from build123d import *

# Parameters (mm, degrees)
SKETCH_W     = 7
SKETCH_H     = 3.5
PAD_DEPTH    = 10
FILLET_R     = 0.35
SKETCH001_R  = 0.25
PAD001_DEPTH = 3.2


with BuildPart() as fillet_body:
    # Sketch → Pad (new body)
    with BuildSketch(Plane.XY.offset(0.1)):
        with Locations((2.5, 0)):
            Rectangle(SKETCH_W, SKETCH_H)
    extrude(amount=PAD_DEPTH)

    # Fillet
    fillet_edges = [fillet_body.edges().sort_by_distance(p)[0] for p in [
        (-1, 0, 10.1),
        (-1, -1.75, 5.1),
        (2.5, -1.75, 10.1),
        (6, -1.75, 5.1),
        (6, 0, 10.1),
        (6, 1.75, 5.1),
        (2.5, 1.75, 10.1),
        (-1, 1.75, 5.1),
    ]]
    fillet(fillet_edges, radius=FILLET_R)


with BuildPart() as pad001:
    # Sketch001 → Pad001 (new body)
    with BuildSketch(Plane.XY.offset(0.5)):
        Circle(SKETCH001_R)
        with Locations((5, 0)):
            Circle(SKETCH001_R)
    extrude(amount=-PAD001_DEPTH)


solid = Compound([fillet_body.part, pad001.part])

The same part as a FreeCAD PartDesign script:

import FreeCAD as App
import Part
import Sketcher

V = App.Vector
Q = App.Units.Quantity


def edges_at(feature, points):
    """Names of the edges that pass closest to the given points."""
    edges = feature.Shape.Edges
    near = lambda p: min(range(len(edges)), key=lambda i: edges[i].distToShape(Part.Vertex(*p))[0])
    return sorted({f"Edge{near(p) + 1}" for p in points})


def add_polygon(sketch, points):
    """Adds a closed chain of lines whose ends are joined by coincident constraints."""
    first, n = sketch.GeometryCount, len(points)
    for a, b in zip(points, points[1:] + points[:1]):
        sketch.addGeometry(Part.LineSegment(App.Vector(*a, 0), App.Vector(*b, 0)), False)
    for i in range(n):
        sketch.addConstraint(Sketcher.Constraint("Coincident", first + i, 2, first + (i + 1) % n, 1))

doc = App.newDocument("Part")
body = doc.addObject("PartDesign::Body", "Body")

# Sketch on XY plane
sketch1 = body.newObject("Sketcher::SketchObject", "Sketch")
sketch1.AttachmentSupport = (doc.getObject("XY_Plane"), [""])
sketch1.MapMode = "FlatFace"
sketch1.AttachmentOffset = App.Placement(V(0, 0, 0.1), App.Rotation())
add_polygon(sketch1, [(-1, 1.8), (-1, -1.8), (6, -1.8), (6, 1.8)])  # lines 0-3
sketch1.addConstraint(Sketcher.Constraint("Vertical", 0))
sketch1.addConstraint(Sketcher.Constraint("Horizontal", 1))
sketch1.addConstraint(Sketcher.Constraint("Vertical", 2))
sketch1.addConstraint(Sketcher.Constraint("Horizontal", 3))
sketch1.addConstraint(Sketcher.Constraint("DistanceX", 1, 1, 1, 2, Q("7 mm")))
sketch1.addConstraint(Sketcher.Constraint("DistanceY", 0, 2, 0, 1, Q("3.5 mm")))
sketch1.addConstraint(Sketcher.Constraint("DistanceX", 0, 2, -1, 1, Q("1 mm")))
sketch1.addConstraint(Sketcher.Constraint("DistanceY", 0, 2, -1, 1, Q("1.75 mm")))
pad1 = body.newObject("PartDesign::Pad", "Pad")
pad1.Profile = sketch1
pad1.Length = 10
doc.recompute()

fillet = body.newObject("PartDesign::Fillet", "Fillet")
fillet.Base = (pad1, edges_at(pad1, [
    (-1, 0, 10.1),
    (-1, -1.75, 5.1),
    (2.5, -1.75, 10.1),
    (6, -1.75, 5.1),
    (6, 0, 10.1),
    (6, 1.75, 5.1),
    (2.5, 1.75, 10.1),
    (-1, 1.75, 5.1),
]))
fillet.Radius = 0.35
body2 = doc.addObject("PartDesign::Body", "Body001")
body2.AllowCompound = True

# Sketch on XY plane
sketch2 = body2.newObject("Sketcher::SketchObject", "Sketch001")
sketch2.AttachmentSupport = (doc.getObject("XY_Plane001"), [""])
sketch2.MapMode = "FlatFace"
sketch2.AttachmentOffset = App.Placement(V(0, 0, 0.5), App.Rotation())
sketch2.addGeometry(Part.Circle(V(0, 0, 0), V(0, 0, 1), 0.25), False)
sketch2.addGeometry(Part.Circle(V(5, 0, 0), V(0, 0, 1), 0.25), False)
sketch2.addConstraint(Sketcher.Constraint("Coincident", 0, 3, -1, 1))
sketch2.addConstraint(Sketcher.Constraint("Equal", 0, 1))
sketch2.addConstraint(Sketcher.Constraint("PointOnObject", 1, 3, -1))
sketch2.addConstraint(Sketcher.Constraint("Diameter", 0, Q("0.5 mm")))
sketch2.addConstraint(Sketcher.Constraint("DistanceX", -1, 1, 1, 3, Q("5 mm")))
pad2 = body2.newObject("PartDesign::Pad", "Pad001")
pad2.Profile = sketch2
pad2.Length = 3.2
pad2.Reversed = True

doc.recompute()
